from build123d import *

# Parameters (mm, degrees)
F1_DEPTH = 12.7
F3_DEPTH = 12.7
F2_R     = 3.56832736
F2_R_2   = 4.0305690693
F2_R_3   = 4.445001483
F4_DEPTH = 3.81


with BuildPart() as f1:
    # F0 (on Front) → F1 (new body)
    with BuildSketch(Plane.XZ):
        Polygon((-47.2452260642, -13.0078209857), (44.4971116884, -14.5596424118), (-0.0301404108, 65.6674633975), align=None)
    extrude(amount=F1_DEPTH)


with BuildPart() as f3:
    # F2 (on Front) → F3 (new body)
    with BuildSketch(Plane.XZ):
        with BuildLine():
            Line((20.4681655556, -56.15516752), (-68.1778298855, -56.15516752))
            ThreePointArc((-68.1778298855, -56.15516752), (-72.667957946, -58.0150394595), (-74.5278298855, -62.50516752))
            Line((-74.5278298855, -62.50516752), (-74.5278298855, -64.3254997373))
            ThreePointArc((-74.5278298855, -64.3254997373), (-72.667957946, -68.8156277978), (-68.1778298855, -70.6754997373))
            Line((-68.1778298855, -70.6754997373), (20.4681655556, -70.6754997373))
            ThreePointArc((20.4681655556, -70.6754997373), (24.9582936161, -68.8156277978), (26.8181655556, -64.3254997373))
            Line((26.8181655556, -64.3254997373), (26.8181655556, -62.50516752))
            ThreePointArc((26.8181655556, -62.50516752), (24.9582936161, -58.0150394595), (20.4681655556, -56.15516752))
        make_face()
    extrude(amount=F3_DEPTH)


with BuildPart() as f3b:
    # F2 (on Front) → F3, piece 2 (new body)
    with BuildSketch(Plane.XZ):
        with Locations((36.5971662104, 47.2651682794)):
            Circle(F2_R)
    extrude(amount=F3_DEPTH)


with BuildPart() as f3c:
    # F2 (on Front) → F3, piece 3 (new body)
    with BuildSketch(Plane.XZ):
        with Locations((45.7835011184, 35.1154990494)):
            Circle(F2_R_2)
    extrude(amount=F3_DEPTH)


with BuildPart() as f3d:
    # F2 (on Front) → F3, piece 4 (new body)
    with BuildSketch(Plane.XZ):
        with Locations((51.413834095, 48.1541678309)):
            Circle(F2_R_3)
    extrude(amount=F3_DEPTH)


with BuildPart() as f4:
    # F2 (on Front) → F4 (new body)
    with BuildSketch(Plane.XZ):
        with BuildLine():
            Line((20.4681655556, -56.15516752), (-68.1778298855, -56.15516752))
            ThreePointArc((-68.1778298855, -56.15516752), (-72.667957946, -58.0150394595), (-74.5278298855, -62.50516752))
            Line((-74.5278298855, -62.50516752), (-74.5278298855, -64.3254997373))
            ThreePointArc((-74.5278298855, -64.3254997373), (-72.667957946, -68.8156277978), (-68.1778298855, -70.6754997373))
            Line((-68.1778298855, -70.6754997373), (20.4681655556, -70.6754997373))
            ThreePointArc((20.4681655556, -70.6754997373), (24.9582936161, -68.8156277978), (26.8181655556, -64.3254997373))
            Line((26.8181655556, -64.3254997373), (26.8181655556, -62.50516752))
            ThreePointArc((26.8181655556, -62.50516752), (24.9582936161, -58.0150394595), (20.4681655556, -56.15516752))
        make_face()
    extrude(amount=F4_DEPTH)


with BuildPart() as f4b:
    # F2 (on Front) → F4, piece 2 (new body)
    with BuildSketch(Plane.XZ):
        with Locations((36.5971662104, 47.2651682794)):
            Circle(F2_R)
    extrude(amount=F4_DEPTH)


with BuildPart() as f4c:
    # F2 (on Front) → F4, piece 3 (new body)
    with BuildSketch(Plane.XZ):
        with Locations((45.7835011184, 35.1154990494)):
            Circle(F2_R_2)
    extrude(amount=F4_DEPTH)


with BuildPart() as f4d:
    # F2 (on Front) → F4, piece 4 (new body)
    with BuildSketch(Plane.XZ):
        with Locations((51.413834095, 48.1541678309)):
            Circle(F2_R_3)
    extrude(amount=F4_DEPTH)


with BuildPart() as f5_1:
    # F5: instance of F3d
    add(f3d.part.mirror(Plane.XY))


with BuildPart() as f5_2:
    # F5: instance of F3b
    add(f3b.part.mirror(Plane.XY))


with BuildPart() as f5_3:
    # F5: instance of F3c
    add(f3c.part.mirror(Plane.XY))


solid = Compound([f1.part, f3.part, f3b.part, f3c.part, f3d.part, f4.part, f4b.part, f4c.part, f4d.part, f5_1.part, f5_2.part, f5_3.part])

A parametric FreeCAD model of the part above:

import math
import FreeCAD as App
import Part
import Sketcher
Q = App.Units.Quantity

doc = App.newDocument("Part")
body = doc.addObject("PartDesign::Body", "Body")

sketch1 = doc.addObject("Sketcher::SketchObject", "Sketch")
body.addObject(sketch1)
sketch1.AttachmentSupport = (doc.XZ_Plane, [""])
sketch1.MapMode = "FlatFace"
sketch1.addGeometry([
    Part.LineSegment(App.Vector(-47, -13, 0), App.Vector(44, -15, 0)),
    Part.LineSegment(App.Vector(44, -15, 0), App.Vector(0, 66, 0)),
    Part.LineSegment(App.Vector(0, 66, 0), App.Vector(-47, -13, 0)),
], False)
sketch1.addConstraint([
    Sketcher.Constraint("Coincident", 0, 2, 1, 1),
    Sketcher.Constraint("Coincident", 1, 2, 2, 1),
    Sketcher.Constraint("Coincident", 2, 2, 0, 1),
    Sketcher.Constraint("Equal", 0, 1),
    Sketcher.Constraint("Equal", 1, 2),
    Sketcher.Constraint("Distance", 0, Q("91.755461 mm")),
    Sketcher.Constraint("DistanceX", -1, 1, 0, 2, Q("44.497112 mm")),
    Sketcher.Constraint("DistanceX", 1, 2, -1, 1, Q("0.03014 mm")),
    Sketcher.Constraint("DistanceY", 2, 2, -1, 1, Q("13.007821 mm")),
])
pad1 = doc.addObject("PartDesign::Pad", "Pad")
body.addObject(pad1)
pad1.Profile = sketch1
pad1.Length = Q("0.5 in")
body2 = doc.addObject("PartDesign::Body", "Body001")

sketch2 = doc.addObject("Sketcher::SketchObject", "Sketch001")
body2.addObject(sketch2)
sketch2.AttachmentSupport = (doc.getObject("XZ_Plane001"), [""])
sketch2.MapMode = "FlatFace"
sketch2.addGeometry([
    Part.LineSegment(App.Vector(20.5, -56.2, 0), App.Vector(-68.2, -56.2, 0)),
    Part.ArcOfCircle(Part.Circle(App.Vector(-68.2, -62.5, 0), App.Vector(0, 0, 1), 6.3), math.radians(90), math.radians(180)),
    Part.LineSegment(App.Vector(-74.5, -62.5, 0), App.Vector(-74.5, -64.3, 0)),
    Part.ArcOfCircle(Part.Circle(App.Vector(-68.2, -64.3, 0), App.Vector(0, 0, 1), 6.3), math.radians(180), math.radians(270)),
    Part.LineSegment(App.Vector(-68.2, -70.7, 0), App.Vector(20.5, -70.7, 0)),
    Part.ArcOfCircle(Part.Circle(App.Vector(20.5, -64.3, 0), App.Vector(0, 0, 1), 6.3), math.radians(-90), math.radians(0)),
    Part.LineSegment(App.Vector(26.8, -64.3, 0), App.Vector(26.8, -62.5, 0)),
    Part.ArcOfCircle(Part.Circle(App.Vector(20.5, -62.5, 0), App.Vector(0, 0, 1), 6.3), math.radians(0), math.radians(90)),
], False)
sketch2.addConstraint([
    Sketcher.Constraint("Tangent", 0, 2, 1, 1),
    Sketcher.Constraint("Tangent", 1, 2, 2, 1),
    Sketcher.Constraint("Tangent", 2, 2, 3, 1),
    Sketcher.Constraint("Tangent", 3, 2, 4, 1),
    Sketcher.Constraint("Tangent", 4, 2, 5, 1),
    Sketcher.Constraint("Tangent", 5, 2, 6, 1),
    Sketcher.Constraint("Tangent", 6, 2, 7, 1),
    Sketcher.Constraint("Tangent", 7, 2, 0, 1),
    Sketcher.Constraint("Horizontal", 0),
    Sketcher.Constraint("Vertical", 2),
    Sketcher.Constraint("Horizontal", 4),
    Sketcher.Constraint("Vertical", 6),
    Sketcher.Constraint("Equal", 1, 3),
    Sketcher.Constraint("Equal", 3, 5),
    Sketcher.Constraint("Equal", 5, 7),
    Sketcher.Constraint("Radius", 1, Q("0.25 in")),
    Sketcher.Constraint("DistanceX", 0, 2, 0, 1, Q("3.4899998 in")),
    Sketcher.Constraint("DistanceY", 3, 3, -1, 1, Q("2.5325 in")),
    Sketcher.Constraint("DistanceY", 2, 2, 2, 1, Q("1.820332 mm")),
    Sketcher.Constraint("DistanceX", 1, 3, -1, 1, Q("68.17783 mm")),
])
pad2 = doc.addObject("PartDesign::Pad", "Pad001")
body2.addObject(pad2)
pad2.Profile = sketch2
pad2.Length = Q("0.5 in")
body3 = doc.addObject("PartDesign::Body", "Body002")

sketch3 = doc.addObject("Sketcher::SketchObject", "Sketch002")
body3.addObject(sketch3)
sketch3.AttachmentSupport = (doc.getObject("XZ_Plane002"), [""])
sketch3.MapMode = "FlatFace"
sketch3.addGeometry(Part.Circle(App.Vector(36.6, 47.3, 0), App.Vector(0, 0, 1), 3.6), False)
sketch3.addConstraint([
    Sketcher.Constraint("Diameter", 0, Q("7.136655 mm")),
    Sketcher.Constraint("DistanceY", -1, 1, 0, 3, Q("47.265168 mm")),
    Sketcher.Constraint("DistanceX", -1, 1, 0, 3, Q("36.597166 mm")),
])
pad3 = doc.addObject("PartDesign::Pad", "Pad002")
body3.addObject(pad3)
pad3.Profile = sketch3
pad3.Length = Q("0.5 in")
body4 = doc.addObject("PartDesign::Body", "Body003")

sketch4 = doc.addObject("Sketcher::SketchObject", "Sketch003")
body4.addObject(sketch4)
sketch4.AttachmentSupport = (doc.getObject("XZ_Plane003"), [""])
sketch4.MapMode = "FlatFace"
sketch4.addGeometry(Part.Circle(App.Vector(45.8, 35.1, 0), App.Vector(0, 0, 1), 4), False)
sketch4.addConstraint([
    Sketcher.Constraint("Diameter", 0, Q("8.061138 mm")),
    Sketcher.Constraint("DistanceX", -1, 1, 0, 3, Q("1.8025 in")),
    Sketcher.Constraint("DistanceY", -1, 1, 0, 3, Q("1.3825 in")),
])
pad4 = doc.addObject("PartDesign::Pad", "Pad003")
body4.addObject(pad4)
pad4.Profile = sketch4
pad4.Length = Q("0.5 in")
body5 = doc.addObject("PartDesign::Body", "Body004")

sketch5 = doc.addObject("Sketcher::SketchObject", "Sketch004")
body5.addObject(sketch5)
sketch5.AttachmentSupport = (doc.getObject("XZ_Plane004"), [""])
sketch5.MapMode = "FlatFace"
sketch5.addGeometry(Part.Circle(App.Vector(51.4, 48.2, 0), App.Vector(0, 0, 1), 4.4), False)
sketch5.addConstraint([
    Sketcher.Constraint("Diameter", 0, Q("0.3500001 in")),
    Sketcher.Constraint("DistanceX", -1, 1, 0, 3, Q("51.413834 mm")),
    Sketcher.Constraint("DistanceY", -1, 1, 0, 3, Q("48.154168 mm")),
])
pad5 = doc.addObject("PartDesign::Pad", "Pad004")
body5.addObject(pad5)
pad5.Profile = sketch5
pad5.Length = Q("0.5 in")
body6 = doc.addObject("PartDesign::Body", "Body005")

sketch6 = doc.addObject("Sketcher::SketchObject", "Sketch005")
body6.addObject(sketch6)
sketch6.AttachmentSupport = (doc.getObject("XZ_Plane005"), [""])
sketch6.MapMode = "FlatFace"
sketch6.addGeometry([
    Part.LineSegment(App.Vector(20.5, -56.2, 0), App.Vector(-68.2, -56.2, 0)),
    Part.ArcOfCircle(Part.Circle(App.Vector(-68.2, -62.5, 0), App.Vector(0, 0, 1), 6.3), math.radians(90), math.radians(180)),
    Part.LineSegment(App.Vector(-74.5, -62.5, 0), App.Vector(-74.5, -64.3, 0)),
    Part.ArcOfCircle(Part.Circle(App.Vector(-68.2, -64.3, 0), App.Vector(0, 0, 1), 6.3), math.radians(180), math.radians(270)),
    Part.LineSegment(App.Vector(-68.2, -70.7, 0), App.Vector(20.5, -70.7, 0)),
    Part.ArcOfCircle(Part.Circle(App.Vector(20.5, -64.3, 0), App.Vector(0, 0, 1), 6.3), math.radians(-90), math.radians(0)),
    Part.LineSegment(App.Vector(26.8, -64.3, 0), App.Vector(26.8, -62.5, 0)),
    Part.ArcOfCircle(Part.Circle(App.Vector(20.5, -62.5, 0), App.Vector(0, 0, 1), 6.3), math.radians(0), math.radians(90)),
], False)
sketch6.addConstraint([
    Sketcher.Constraint("Tangent", 0, 2, 1, 1),
    Sketcher.Constraint("Tangent", 1, 2, 2, 1),
    Sketcher.Constraint("Tangent", 2, 2, 3, 1),
    Sketcher.Constraint("Tangent", 3, 2, 4, 1),
    Sketcher.Constraint("Tangent", 4, 2, 5, 1),
    Sketcher.Constraint("Tangent", 5, 2, 6, 1),
    Sketcher.Constraint("Tangent", 6, 2, 7, 1),
    Sketcher.Constraint("Tangent", 7, 2, 0, 1),
    Sketcher.Constraint("Horizontal", 0),
    Sketcher.Constraint("Vertical", 2),
    Sketcher.Constraint("Horizontal", 4),
    Sketcher.Constraint("Vertical", 6),
    Sketcher.Constraint("Equal", 1, 3),
    Sketcher.Constraint("Equal", 3, 5),
    Sketcher.Constraint("Equal", 5, 7),
    Sketcher.Constraint("Radius", 1, Q("0.25 in")),
    Sketcher.Constraint("DistanceX", 0, 2, 0, 1, Q("3.4899998 in")),
    Sketcher.Constraint("DistanceY", 3, 3, -1, 1, Q("2.5325 in")),
    Sketcher.Constraint("DistanceY", 2, 2, 2, 1, Q("1.820332 mm")),
    Sketcher.Constraint("DistanceX", 1, 3, -1, 1, Q("68.17783 mm")),
])
pad6 = doc.addObject("PartDesign::Pad", "Pad005")
body6.addObject(pad6)
pad6.Profile = sketch6
pad6.Length = Q("0.15 in")
body7 = doc.addObject("PartDesign::Body", "Body006")

sketch7 = doc.addObject("Sketcher::SketchObject", "Sketch006")
body7.addObject(sketch7)
sketch7.AttachmentSupport = (doc.getObject("XZ_Plane006"), [""])
sketch7.MapMode = "FlatFace"
sketch7.addGeometry(Part.Circle(App.Vector(36.6, 47.3, 0), App.Vector(0, 0, 1), 3.6), False)
sketch7.addConstraint([
    Sketcher.Constraint("Diameter", 0, Q("7.136655 mm")),
    Sketcher.Constraint("DistanceY", -1, 1, 0, 3, Q("47.265168 mm")),
    Sketcher.Constraint("DistanceX", -1, 1, 0, 3, Q("36.597166 mm")),
])
pad7 = doc.addObject("PartDesign::Pad", "Pad006")
body7.addObject(pad7)
pad7.Profile = sketch7
pad7.Length = Q("0.15 in")
body8 = doc.addObject("PartDesign::Body", "Body007")

sketch8 = doc.addObject("Sketcher::SketchObject", "Sketch007")
body8.addObject(sketch8)
sketch8.AttachmentSupport = (doc.getObject("XZ_Plane007"), [""])
sketch8.MapMode = "FlatFace"
sketch8.addGeometry(Part.Circle(App.Vector(45.8, 35.1, 0), App.Vector(0, 0, 1), 4), False)
sketch8.addConstraint([
    Sketcher.Constraint("Diameter", 0, Q("8.061138 mm")),
    Sketcher.Constraint("DistanceX", -1, 1, 0, 3, Q("1.8025 in")),
    Sketcher.Constraint("DistanceY", -1, 1, 0, 3, Q("1.3825 in")),
])
pad8 = doc.addObject("PartDesign::Pad", "Pad007")
body8.addObject(pad8)
pad8.Profile = sketch8
pad8.Length = Q("0.15 in")
body9 = doc.addObject("PartDesign::Body", "Body008")

sketch9 = doc.addObject("Sketcher::SketchObject", "Sketch008")
body9.addObject(sketch9)
sketch9.AttachmentSupport = (doc.getObject("XZ_Plane008"), [""])
sketch9.MapMode = "FlatFace"
sketch9.addGeometry(Part.Circle(App.Vector(51.4, 48.2, 0), App.Vector(0, 0, 1), 4.4), False)
sketch9.addConstraint([
    Sketcher.Constraint("Diameter", 0, Q("0.3500001 in")),
    Sketcher.Constraint("DistanceX", -1, 1, 0, 3, Q("51.413834 mm")),
    Sketcher.Constraint("DistanceY", -1, 1, 0, 3, Q("48.154168 mm")),
])
pad9 = doc.addObject("PartDesign::Pad", "Pad008")
body9.addObject(pad9)
pad9.Profile = sketch9
pad9.Length = Q("0.15 in")
body10 = doc.addObject("PartDesign::Body", "Body009")
doc.recompute()

mirroring = doc.addObject("Part::Mirroring", "Mirroring")
mirroring.Source = body5
mirroring.Base = App.Vector(0, 0, 0)
mirroring.Normal = App.Vector(0, 0, 1)
body10.BaseFeature = mirroring
doc.recompute()
body11 = doc.addObject("PartDesign::Body", "Body010")
doc.recompute()

mirroring2 = doc.addObject("Part::Mirroring", "Mirroring001")
mirroring2.Source = body3
mirroring2.Base = App.Vector(0, 0, 0)
mirroring2.Normal = App.Vector(0, 0, 1)
body11.BaseFeature = mirroring2
doc.recompute()
body12 = doc.addObject("PartDesign::Body", "Body011")
doc.recompute()

mirroring3 = doc.addObject("Part::Mirroring", "Mirroring002")
mirroring3.Source = body4
mirroring3.Base = App.Vector(0, 0, 0)
mirroring3.Normal = App.Vector(0, 0, 1)
body12.BaseFeature = mirroring3
doc.recompute()
mirroring.Visibility = False
mirroring2.Visibility = False
mirroring3.Visibility = False

doc.recompute()
